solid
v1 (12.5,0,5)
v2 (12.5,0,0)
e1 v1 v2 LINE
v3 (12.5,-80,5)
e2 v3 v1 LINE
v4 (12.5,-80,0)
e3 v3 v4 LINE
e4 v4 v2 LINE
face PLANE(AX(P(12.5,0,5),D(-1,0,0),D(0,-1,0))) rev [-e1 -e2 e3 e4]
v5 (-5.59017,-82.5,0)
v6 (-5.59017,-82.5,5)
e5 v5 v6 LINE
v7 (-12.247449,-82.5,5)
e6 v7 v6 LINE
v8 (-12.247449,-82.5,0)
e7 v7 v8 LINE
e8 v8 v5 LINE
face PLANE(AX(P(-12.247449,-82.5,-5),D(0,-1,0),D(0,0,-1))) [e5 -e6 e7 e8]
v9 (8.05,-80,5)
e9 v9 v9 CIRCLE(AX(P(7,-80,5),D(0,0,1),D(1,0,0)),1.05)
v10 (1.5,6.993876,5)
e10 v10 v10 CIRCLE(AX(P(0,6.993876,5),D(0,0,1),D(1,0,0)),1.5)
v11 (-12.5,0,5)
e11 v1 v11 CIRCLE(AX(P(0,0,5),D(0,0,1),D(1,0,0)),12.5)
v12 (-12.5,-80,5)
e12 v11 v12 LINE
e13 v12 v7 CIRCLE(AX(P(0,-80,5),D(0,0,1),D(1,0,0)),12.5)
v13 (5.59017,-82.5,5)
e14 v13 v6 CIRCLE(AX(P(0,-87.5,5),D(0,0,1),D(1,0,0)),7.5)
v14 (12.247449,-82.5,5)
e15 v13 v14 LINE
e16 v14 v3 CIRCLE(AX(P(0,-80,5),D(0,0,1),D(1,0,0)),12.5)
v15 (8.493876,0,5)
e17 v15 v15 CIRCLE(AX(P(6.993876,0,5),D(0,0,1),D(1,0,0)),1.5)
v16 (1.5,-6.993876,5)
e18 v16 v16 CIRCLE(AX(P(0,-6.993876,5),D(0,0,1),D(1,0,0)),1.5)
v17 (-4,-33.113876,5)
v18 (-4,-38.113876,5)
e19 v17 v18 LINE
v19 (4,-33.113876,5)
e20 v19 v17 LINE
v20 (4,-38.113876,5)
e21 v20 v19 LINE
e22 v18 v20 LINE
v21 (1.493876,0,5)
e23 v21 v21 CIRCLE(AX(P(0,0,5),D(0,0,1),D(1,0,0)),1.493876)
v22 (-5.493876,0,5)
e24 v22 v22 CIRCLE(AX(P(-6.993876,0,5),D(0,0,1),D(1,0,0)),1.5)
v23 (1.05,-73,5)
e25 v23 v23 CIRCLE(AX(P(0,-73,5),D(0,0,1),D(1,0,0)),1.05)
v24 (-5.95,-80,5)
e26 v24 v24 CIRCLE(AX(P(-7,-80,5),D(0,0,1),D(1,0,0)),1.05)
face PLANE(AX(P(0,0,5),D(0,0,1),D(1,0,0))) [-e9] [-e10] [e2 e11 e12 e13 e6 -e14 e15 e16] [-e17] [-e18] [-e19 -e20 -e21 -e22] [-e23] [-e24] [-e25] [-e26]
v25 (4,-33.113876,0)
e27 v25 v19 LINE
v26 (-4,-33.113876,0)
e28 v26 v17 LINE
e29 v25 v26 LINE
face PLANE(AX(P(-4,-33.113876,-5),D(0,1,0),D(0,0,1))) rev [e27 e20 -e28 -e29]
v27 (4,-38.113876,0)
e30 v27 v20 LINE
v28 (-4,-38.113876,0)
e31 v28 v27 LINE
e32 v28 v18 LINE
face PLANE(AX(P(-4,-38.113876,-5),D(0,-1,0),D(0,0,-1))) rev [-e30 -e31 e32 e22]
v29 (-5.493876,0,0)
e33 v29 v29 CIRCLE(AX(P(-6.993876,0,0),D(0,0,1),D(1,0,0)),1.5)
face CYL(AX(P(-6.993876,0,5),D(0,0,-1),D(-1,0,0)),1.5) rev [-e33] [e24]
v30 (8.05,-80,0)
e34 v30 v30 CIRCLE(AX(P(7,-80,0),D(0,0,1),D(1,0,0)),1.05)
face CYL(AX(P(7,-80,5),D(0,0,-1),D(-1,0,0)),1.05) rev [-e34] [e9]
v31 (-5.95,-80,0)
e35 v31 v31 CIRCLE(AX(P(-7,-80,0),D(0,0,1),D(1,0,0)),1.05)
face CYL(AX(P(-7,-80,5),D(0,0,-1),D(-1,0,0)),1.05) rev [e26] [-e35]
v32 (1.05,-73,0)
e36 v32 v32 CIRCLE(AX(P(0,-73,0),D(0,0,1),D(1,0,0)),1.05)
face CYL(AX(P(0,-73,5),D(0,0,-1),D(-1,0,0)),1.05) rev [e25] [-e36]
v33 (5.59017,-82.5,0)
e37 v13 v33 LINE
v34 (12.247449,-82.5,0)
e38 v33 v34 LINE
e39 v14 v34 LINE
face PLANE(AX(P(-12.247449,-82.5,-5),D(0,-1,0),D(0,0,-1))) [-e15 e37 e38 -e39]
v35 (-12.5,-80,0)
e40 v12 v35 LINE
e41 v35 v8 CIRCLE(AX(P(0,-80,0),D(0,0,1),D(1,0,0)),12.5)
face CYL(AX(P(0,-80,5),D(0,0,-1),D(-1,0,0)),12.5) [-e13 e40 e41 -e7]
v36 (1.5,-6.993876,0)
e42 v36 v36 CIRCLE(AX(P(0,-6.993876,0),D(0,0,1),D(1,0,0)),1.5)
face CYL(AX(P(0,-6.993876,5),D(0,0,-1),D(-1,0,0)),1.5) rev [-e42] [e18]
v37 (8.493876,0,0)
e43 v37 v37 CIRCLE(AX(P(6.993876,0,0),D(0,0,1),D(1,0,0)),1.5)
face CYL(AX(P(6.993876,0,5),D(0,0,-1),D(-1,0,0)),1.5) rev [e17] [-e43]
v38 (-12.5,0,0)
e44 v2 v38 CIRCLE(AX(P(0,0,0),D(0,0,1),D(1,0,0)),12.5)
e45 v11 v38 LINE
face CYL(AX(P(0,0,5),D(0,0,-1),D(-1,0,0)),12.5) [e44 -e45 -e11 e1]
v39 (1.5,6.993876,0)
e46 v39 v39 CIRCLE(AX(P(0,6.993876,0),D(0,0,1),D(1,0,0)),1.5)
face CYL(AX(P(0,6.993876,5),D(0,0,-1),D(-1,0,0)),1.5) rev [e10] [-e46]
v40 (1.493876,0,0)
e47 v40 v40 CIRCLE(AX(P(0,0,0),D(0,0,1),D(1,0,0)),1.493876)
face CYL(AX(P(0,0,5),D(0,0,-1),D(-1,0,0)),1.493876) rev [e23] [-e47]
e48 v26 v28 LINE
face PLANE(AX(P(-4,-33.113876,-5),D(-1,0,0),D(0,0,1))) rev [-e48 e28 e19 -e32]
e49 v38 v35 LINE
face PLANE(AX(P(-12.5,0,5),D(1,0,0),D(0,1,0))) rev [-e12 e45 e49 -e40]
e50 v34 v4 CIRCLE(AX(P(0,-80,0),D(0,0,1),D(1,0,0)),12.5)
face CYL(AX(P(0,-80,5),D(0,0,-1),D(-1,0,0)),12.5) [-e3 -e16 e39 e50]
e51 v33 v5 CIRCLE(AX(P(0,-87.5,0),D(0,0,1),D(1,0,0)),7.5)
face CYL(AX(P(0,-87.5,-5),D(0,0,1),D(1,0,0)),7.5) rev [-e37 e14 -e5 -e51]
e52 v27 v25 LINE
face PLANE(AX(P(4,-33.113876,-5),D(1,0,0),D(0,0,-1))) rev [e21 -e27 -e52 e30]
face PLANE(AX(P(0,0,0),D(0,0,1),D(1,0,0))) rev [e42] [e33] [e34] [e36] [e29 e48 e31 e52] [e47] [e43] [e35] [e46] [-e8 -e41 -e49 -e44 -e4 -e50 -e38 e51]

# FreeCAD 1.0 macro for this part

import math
import FreeCAD as App
import Part
import Sketcher
from FreeCAD import Vector
Q = App.Units.Quantity

doc = App.newDocument("Part")
body = doc.addObject("PartDesign::Body", "Body")

sketch1 = body.newObject("Sketcher::SketchObject", "Sketch")
sketch1.AttachmentSupport = (doc.getObject("XY_Plane"), [""])
sketch1.MapMode = "FlatFace"
sketch1.addGeometry([
    Part.LineSegment(Vector(-12.5, 0, 0), Vector(-12.5, -80, 0)),
    Part.ArcOfCircle(Part.Circle(Vector(0, -80, 0), Vector(0, 0, 1), 12.5), math.radians(180), math.radians(360)),
    Part.LineSegment(Vector(12.5, -80, 0), Vector(12.5, 0, 0)),
    Part.ArcOfCircle(Part.Circle(Vector(0, 0, 0), Vector(0, 0, 1), 12.5), math.radians(0), math.radians(180)),
    Part.Circle(Vector(-7, -80, 0), Vector(0, 0, 1), 1.1),
    Part.Circle(Vector(0, -73, 0), Vector(0, 0, 1), 1.1),
    Part.Circle(Vector(7, -80, 0), Vector(0, 0, 1), 1.1),
    Part.Circle(Vector(-7, 0, 0), Vector(0, 0, 1), 1.5),
    Part.Circle(Vector(0, -7, 0), Vector(0, 0, 1), 1.5),
    Part.Circle(Vector(0, 0, 0), Vector(0, 0, 1), 1.5),
    Part.Circle(Vector(0, 7, 0), Vector(0, 0, 1), 1.5),
    Part.Circle(Vector(7, 0, 0), Vector(0, 0, 1), 1.5),
], False)
sketch1.addConstraint([
    Sketcher.Constraint("Tangent", 0, 2, 1, 1),
    Sketcher.Constraint("Tangent", 1, 2, 2, 1),
    Sketcher.Constraint("Tangent", 2, 2, 3, 1),
    Sketcher.Constraint("Tangent", 3, 2, 0, 1),
    Sketcher.Constraint("Vertical", 0),
    Sketcher.Constraint("Vertical", 2),
    Sketcher.Constraint("Coincident", 3, 3, -1, 1),
    Sketcher.Constraint("Coincident", 9, 3, -1, 1),
    Sketcher.Constraint("Equal", 4, 5),
    Sketcher.Constraint("Equal", 5, 6),
    Sketcher.Constraint("Equal", 7, 8),
    Sketcher.Constraint("Equal", 8, 10),
    Sketcher.Constraint("Equal", 10, 11),
    Sketcher.Constraint("Symmetric", 8, 3, 10, 3, -1, 1),
    Sketcher.Constraint("Symmetric", 7, 3, 11, 3, -1, 1),
    Sketcher.Constraint("Symmetric", 4, 3, 6, 3, -2),
    Sketcher.Constraint("PointOnObject", 5, 3, -2),
    Sketcher.Constraint("PointOnObject", 7, 3, -1),
    Sketcher.Constraint("PointOnObject", 8, 3, -2),
    Sketcher.Constraint("Horizontal", 1, 3, 4, 3),
    Sketcher.Constraint("Diameter", 7, Q("3 mm")),
    Sketcher.Constraint("Diameter", 4, Q("2.1 mm")),
    Sketcher.Constraint("Radius", 1, Q("12.5 mm")),
    Sketcher.Constraint("DistanceY", 0, 2, 0, 1, Q("80 mm")),
    Sketcher.Constraint("DistanceX", 4, 3, -1, 1, Q("7 mm")),
    Sketcher.Constraint("DistanceY", 5, 3, -1, 1, Q("73 mm")),
    Sketcher.Constraint("Diameter", 9, Q("2.987752 mm")),
    Sketcher.Constraint("DistanceY", 8, 3, 10, 3, Q("13.987752 mm")),
    Sketcher.Constraint("DistanceX", 7, 3, 11, 3, Q("13.987752 mm")),
])
pad1 = body.newObject("PartDesign::Pad", "Pad")
pad1.Profile = sketch1
pad1.Length = 5

sketch2 = body.newObject("Sketcher::SketchObject", "Sketch001")
sketch2.AttachmentSupport = (doc.getObject("XY_Plane"), [""])
sketch2.MapMode = "FlatFace"
sketch2.AttachmentOffset = App.Placement(Vector(0, 0, 5), App.Rotation())
sketch2.addGeometry([
    Part.LineSegment(Vector(-4, -33, 0), Vector(-4, -38, 0)),
    Part.LineSegment(Vector(-4, -38, 0), Vector(4, -38, 0)),
    Part.LineSegment(Vector(4, -38, 0), Vector(4, -33, 0)),
    Part.LineSegment(Vector(4, -33, 0), Vector(-4, -33, 0)),
], False)
sketch2.addConstraint([
    Sketcher.Constraint("Coincident", 0, 2, 1, 1),
    Sketcher.Constraint("Coincident", 1, 2, 2, 1),
    Sketcher.Constraint("Coincident", 2, 2, 3, 1),
    Sketcher.Constraint("Coincident", 3, 2, 0, 1),
    Sketcher.Constraint("Vertical", 0),
    Sketcher.Constraint("Horizontal", 1),
    Sketcher.Constraint("Vertical", 2),
    Sketcher.Constraint("Horizontal", 3),
    Sketcher.Constraint("DistanceX", 1, 1, 1, 2, Q("8 mm")),
    Sketcher.Constraint("DistanceY", 0, 2, 0, 1, Q("5 mm")),
    Sketcher.Constraint("DistanceX", 0, 2, -1, 1, Q("4 mm")),
    Sketcher.Constraint("DistanceY", 0, 2, -1, 1, Q("38.113876 mm")),
])
pocket1 = body.newObject("PartDesign::Pocket", "Pocket")
pocket1.Profile = sketch2
pocket1.Length = 10

sketch3 = body.newObject("Sketcher::SketchObject", "Sketch002")
sketch3.AttachmentSupport = (doc.getObject("XY_Plane"), [""])
sketch3.MapMode = "FlatFace"
sketch3.AttachmentOffset = App.Placement(Vector(0, 0, 5), App.Rotation())
sketch3.addGeometry([
    Part.LineSegment(Vector(6, -92, 0), Vector(12, -92, 0)),
    Part.LineSegment(Vector(12, -92, 0), Vector(12, -82, 0)),
    Part.LineSegment(Vector(12, -82, 0), Vector(6, -82, 0)),
    Part.ArcOfCircle(Part.Circle(Vector(0, -88, 0), Vector(0, 0, 1), 8), math.radians(42), math.radians(138)),
    Part.LineSegment(Vector(-6, -82, 0), Vector(-12, -82, 0)),
    Part.LineSegment(Vector(-12, -82, 0), Vector(-12, -92, 0)),
    Part.LineSegment(Vector(-12, -92, 0), Vector(-6, -92, 0)),
    Part.ArcOfCircle(Part.Circle(Vector(0, -88, 0), Vector(0, 0, 1), 8), math.radians(-138), math.radians(-42)),
], False)
sketch3.addConstraint([
    Sketcher.Constraint("Coincident", 0, 2, 1, 1),
    Sketcher.Constraint("Coincident", 1, 2, 2, 1),
    Sketcher.Constraint("Coincident", 2, 2, 3, 1),
    Sketcher.Constraint("Coincident", 3, 2, 4, 1),
    Sketcher.Constraint("Coincident", 4, 2, 5, 1),
    Sketcher.Constraint("Coincident", 5, 2, 6, 1),
    Sketcher.Constraint("Coincident", 6, 2, 7, 1),
    Sketcher.Constraint("Coincident", 7, 2, 0, 1),
    Sketcher.Constraint("Horizontal", 0),
    Sketcher.Constraint("Vertical", 1),
    Sketcher.Constraint("Horizontal", 2),
    Sketcher.Constraint("Horizontal", 4),
    Sketcher.Constraint("Vertical", 5),
    Sketcher.Constraint("Horizontal", 6),
    Sketcher.Constraint("Coincident", 7, 3, 3, 3),
    Sketcher.Constraint("Equal", 3, 7),
    Sketcher.Constraint("Symmetric", 2, 2, 3, 2, -2),
    Sketcher.Constraint("Symmetric", 0, 2, 5, 2, -2),
    Sketcher.Constraint("Vertical", 3, 2, 6, 2),
    Sketcher.Constraint("Radius", 3, Q("7.5 mm")),
    Sketcher.Constraint("DistanceY", 1, 1, 1, 2, Q("10 mm")),
    Sketcher.Constraint("DistanceY", 3, 3, -1, 1, Q("87.5 mm")),
    Sketcher.Constraint("DistanceX", 0, 1, 0, 2, Q("6.657279 mm")),
])
pocket2 = body.newObject("PartDesign::Pocket", "Pocket001")
pocket2.Profile = sketch3
pocket2.Length = 10

doc.recompute()
